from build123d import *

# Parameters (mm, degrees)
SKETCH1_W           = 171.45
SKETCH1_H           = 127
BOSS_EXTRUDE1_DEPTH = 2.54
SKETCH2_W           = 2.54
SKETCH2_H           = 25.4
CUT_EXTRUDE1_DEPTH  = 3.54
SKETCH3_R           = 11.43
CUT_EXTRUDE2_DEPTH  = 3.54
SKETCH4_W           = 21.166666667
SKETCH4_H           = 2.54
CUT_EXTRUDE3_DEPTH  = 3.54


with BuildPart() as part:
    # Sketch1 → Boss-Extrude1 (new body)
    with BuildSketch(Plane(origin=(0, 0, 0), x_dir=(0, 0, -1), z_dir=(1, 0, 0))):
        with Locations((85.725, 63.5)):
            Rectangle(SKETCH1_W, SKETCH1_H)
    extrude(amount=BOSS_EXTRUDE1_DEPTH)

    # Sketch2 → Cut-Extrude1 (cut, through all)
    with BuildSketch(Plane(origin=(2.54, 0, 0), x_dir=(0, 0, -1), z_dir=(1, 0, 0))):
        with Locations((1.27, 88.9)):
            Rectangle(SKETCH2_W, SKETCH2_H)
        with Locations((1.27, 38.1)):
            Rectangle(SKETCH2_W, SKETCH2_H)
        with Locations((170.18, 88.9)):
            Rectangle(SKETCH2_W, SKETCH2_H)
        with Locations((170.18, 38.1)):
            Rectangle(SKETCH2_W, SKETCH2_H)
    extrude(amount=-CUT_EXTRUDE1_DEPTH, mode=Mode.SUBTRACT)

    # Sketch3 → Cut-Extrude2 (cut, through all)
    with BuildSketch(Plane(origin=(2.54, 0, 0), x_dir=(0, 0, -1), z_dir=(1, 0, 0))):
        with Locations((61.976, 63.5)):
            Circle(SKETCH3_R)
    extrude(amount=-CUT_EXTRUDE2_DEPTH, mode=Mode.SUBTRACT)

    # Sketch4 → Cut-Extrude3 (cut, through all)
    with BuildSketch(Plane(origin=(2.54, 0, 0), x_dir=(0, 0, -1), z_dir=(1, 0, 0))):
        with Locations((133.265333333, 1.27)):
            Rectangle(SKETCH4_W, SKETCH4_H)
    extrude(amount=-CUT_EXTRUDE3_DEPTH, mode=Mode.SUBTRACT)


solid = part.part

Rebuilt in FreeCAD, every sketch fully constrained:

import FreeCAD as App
import Part
import Sketcher
Q = App.Units.Quantity

doc = App.newDocument("Part")
body = doc.addObject("PartDesign::Body", "Body")

# Sketch on YZ plane
sketch1 = doc.addObject("Sketcher::SketchObject", "Sketch")
body.addObject(sketch1)
sketch1.AttachmentSupport = (doc.YZ_Plane, [""])
sketch1.MapMode = "FlatFace"
sketch1.addGeometry(Part.LineSegment(App.Vector(127, 0, 0), App.Vector(0, 0, 0)), False)
sketch1.addGeometry(Part.LineSegment(App.Vector(0, 0, 0), App.Vector(0, -171.45, 0)), False)
sketch1.addGeometry(Part.LineSegment(App.Vector(0, -171.45, 0), App.Vector(127, -171.45, 0)), False)
sketch1.addGeometry(Part.LineSegment(App.Vector(127, -171.45, 0), App.Vector(127, 0, 0)), False)
sketch1.addConstraint(Sketcher.Constraint("Coincident", 0, 2, 1, 1))
sketch1.addConstraint(Sketcher.Constraint("Coincident", 1, 2, 2, 1))
sketch1.addConstraint(Sketcher.Constraint("Coincident", 2, 2, 3, 1))
sketch1.addConstraint(Sketcher.Constraint("Coincident", 3, 2, 0, 1))
sketch1.addConstraint(Sketcher.Constraint("Horizontal", 0))
sketch1.addConstraint(Sketcher.Constraint("Vertical", 1))
sketch1.addConstraint(Sketcher.Constraint("Horizontal", 2))
sketch1.addConstraint(Sketcher.Constraint("Vertical", 3))
sketch1.addConstraint(Sketcher.Constraint("Coincident", 0, 2, -1, 1))
sketch1.addConstraint(Sketcher.Constraint("DistanceX", 0, 2, 0, 1, Q("5 in")))
sketch1.addConstraint(Sketcher.Constraint("DistanceY", 1, 2, 1, 1, Q("6.75 in")))
pad1 = doc.addObject("PartDesign::Pad", "Pad")
body.addObject(pad1)
pad1.Profile = sketch1
pad1.Length = Q("0.1 in")

# Sketch on YZ plane
sketch2 = doc.addObject("Sketcher::SketchObject", "Sketch001")
body.addObject(sketch2)
sketch2.AttachmentSupport = (doc.YZ_Plane, [""])
sketch2.MapMode = "FlatFace"
sketch2.AttachmentOffset = App.Placement(App.Vector(0, 0, 0.1 * 25.4), App.Rotation())
sketch2.addGeometry(Part.LineSegment(App.Vector(101.6, 0, 0), App.Vector(76.2, 0, 0)), False)
sketch2.addGeometry(Part.LineSegment(App.Vector(76.2, 0, 0), App.Vector(76.2, -2.54, 0)), False)
sketch2.addGeometry(Part.LineSegment(App.Vector(76.2, -2.54, 0), App.Vector(101.6, -2.54, 0)), False)
sketch2.addGeometry(Part.LineSegment(App.Vector(101.6, -2.54, 0), App.Vector(101.6, 0, 0)), False)
sketch2.addGeometry(Part.LineSegment(App.Vector(50.8, 0, 0), App.Vector(25.4, 0, 0)), False)
sketch2.addGeometry(Part.LineSegment(App.Vector(25.4, 0, 0), App.Vector(25.4, -2.54, 0)), False)
sketch2.addGeometry(Part.LineSegment(App.Vector(25.4, -2.54, 0), App.Vector(50.8, -2.54, 0)), False)
sketch2.addGeometry(Part.LineSegment(App.Vector(50.8, -2.54, 0), App.Vector(50.8, 0, 0)), False)
sketch2.addGeometry(Part.LineSegment(App.Vector(101.6, -168.91, 0), App.Vector(76.2, -168.91, 0)), False)
sketch2.addGeometry(Part.LineSegment(App.Vector(76.2, -168.91, 0), App.Vector(76.2, -171.45, 0)), False)
sketch2.addGeometry(Part.LineSegment(App.Vector(76.2, -171.45, 0), App.Vector(101.6, -171.45, 0)), False)
sketch2.addGeometry(Part.LineSegment(App.Vector(101.6, -171.45, 0), App.Vector(101.6, -168.91, 0)), False)
sketch2.addGeometry(Part.LineSegment(App.Vector(50.8, -168.91, 0), App.Vector(25.4, -168.91, 0)), False)
sketch2.addGeometry(Part.LineSegment(App.Vector(25.4, -168.91, 0), App.Vector(25.4, -171.45, 0)), False)
sketch2.addGeometry(Part.LineSegment(App.Vector(25.4, -171.45, 0), App.Vector(50.8, -171.45, 0)), False)
sketch2.addGeometry(Part.LineSegment(App.Vector(50.8, -171.45, 0), App.Vector(50.8, -168.91, 0)), False)
sketch2.addConstraint(Sketcher.Constraint("Coincident", 0, 2, 1, 1))
sketch2.addConstraint(Sketcher.Constraint("Coincident", 1, 2, 2, 1))
sketch2.addConstraint(Sketcher.Constraint("Coincident", 2, 2, 3, 1))
sketch2.addConstraint(Sketcher.Constraint("Coincident", 3, 2, 0, 1))
sketch2.addConstraint(Sketcher.Constraint("Coincident", 4, 2, 5, 1))
sketch2.addConstraint(Sketcher.Constraint("Coincident", 5, 2, 6, 1))
sketch2.addConstraint(Sketcher.Constraint("Coincident", 6, 2, 7, 1))
sketch2.addConstraint(Sketcher.Constraint("Coincident", 7, 2, 4, 1))
sketch2.addConstraint(Sketcher.Constraint("Coincident", 8, 2, 9, 1))
sketch2.addConstraint(Sketcher.Constraint("Coincident", 9, 2, 10, 1))
sketch2.addConstraint(Sketcher.Constraint("Coincident", 10, 2, 11, 1))
sketch2.addConstraint(Sketcher.Constraint("Coincident", 11, 2, 8, 1))
sketch2.addConstraint(Sketcher.Constraint("Coincident", 12, 2, 13, 1))
sketch2.addConstraint(Sketcher.Constraint("Coincident", 13, 2, 14, 1))
sketch2.addConstraint(Sketcher.Constraint("Coincident", 14, 2, 15, 1))
sketch2.addConstraint(Sketcher.Constraint("Coincident", 15, 2, 12, 1))
sketch2.addConstraint(Sketcher.Constraint("Horizontal", 0))
sketch2.addConstraint(Sketcher.Constraint("Vertical", 1))
sketch2.addConstraint(Sketcher.Constraint("Horizontal", 2))
sketch2.addConstraint(Sketcher.Constraint("Vertical", 3))
sketch2.addConstraint(Sketcher.Constraint("Horizontal", 4))
sketch2.addConstraint(Sketcher.Constraint("Vertical", 5))
sketch2.addConstraint(Sketcher.Constraint("Horizontal", 6))
sketch2.addConstraint(Sketcher.Constraint("Vertical", 7))
sketch2.addConstraint(Sketcher.Constraint("Horizontal", 8))
sketch2.addConstraint(Sketcher.Constraint("Vertical", 9))
sketch2.addConstraint(Sketcher.Constraint("Horizontal", 10))
sketch2.addConstraint(Sketcher.Constraint("Vertical", 11))
sketch2.addConstraint(Sketcher.Constraint("Horizontal", 12))
sketch2.addConstraint(Sketcher.Constraint("Vertical", 13))
sketch2.addConstraint(Sketcher.Constraint("Horizontal", 14))
sketch2.addConstraint(Sketcher.Constraint("Vertical", 15))
sketch2.addConstraint(Sketcher.Constraint("PointOnObject", 0, 2, -1))
sketch2.addConstraint(Sketcher.Constraint("PointOnObject", 4, 2, -1))
sketch2.addConstraint(Sketcher.Constraint("Horizontal", 2, 2, 5, 2))
sketch2.addConstraint(Sketcher.Constraint("Horizontal", 11, 2, 12, 2))
sketch2.addConstraint(Sketcher.Constraint("Horizontal", 10, 2, 13, 2))
sketch2.addConstraint(Sketcher.Constraint("Vertical", 1, 2, 8, 2))
sketch2.addConstraint(Sketcher.Constraint("Vertical", 3, 2, 10, 2))
sketch2.addConstraint(Sketcher.Constraint("Vertical", 5, 2, 12, 2))
sketch2.addConstraint(Sketcher.Constraint("Vertical", 7, 2, 14, 2))
sketch2.addConstraint(Sketcher.Constraint("Equal", 2, 4))
sketch2.addConstraint(Sketcher.Constraint("Equal", 7, 9))
sketch2.addConstraint(Sketcher.Constraint("DistanceX", 0, 2, 0, 1, Q("1 in")))
sketch2.addConstraint(Sketcher.Constraint("DistanceY", 1, 2, 1, 1, Q("0.1 in")))
sketch2.addConstraint(Sketcher.Constraint("DistanceX", -1, 1, 0, 2, Q("3 in")))
sketch2.addConstraint(Sketcher.Constraint("DistanceX", -1, 1, 4, 2, Q("1 in")))
sketch2.addConstraint(Sketcher.Constraint("DistanceY", 8, 2, -1, 1, Q("6.65 in")))
pocket1 = doc.addObject("PartDesign::Pocket", "Pocket")
body.addObject(pocket1)
pocket1.Profile = sketch2
pocket1.Type = "ThroughAll"

# Sketch on YZ plane
sketch3 = doc.addObject("Sketcher::SketchObject", "Sketch002")
body.addObject(sketch3)
sketch3.AttachmentSupport = (doc.YZ_Plane, [""])
sketch3.MapMode = "FlatFace"
sketch3.AttachmentOffset = App.Placement(App.Vector(0, 0, 0.1 * 25.4), App.Rotation())
sketch3.addGeometry(Part.Circle(App.Vector(63.5, -61.976, 0), App.Vector(0, 0, 1), 11.43), False)
sketch3.addConstraint(Sketcher.Constraint("Diameter", 0, Q("0.9 in")))
sketch3.addConstraint(Sketcher.Constraint("DistanceX", -1, 1, 0, 3, Q("2.5 in")))
sketch3.addConstraint(Sketcher.Constraint("DistanceY", 0, 3, -1, 1, Q("2.44 in")))
pocket2 = doc.addObject("PartDesign::Pocket", "Pocket001")
body.addObject(pocket2)
pocket2.Profile = sketch3
pocket2.Type = "ThroughAll"

# Sketch on YZ plane
sketch4 = doc.addObject("Sketcher::SketchObject", "Sketch003")
body.addObject(sketch4)
sketch4.AttachmentSupport = (doc.YZ_Plane, [""])
sketch4.MapMode = "FlatFace"
sketch4.AttachmentOffset = App.Placement(App.Vector(0, 0, 0.1 * 25.4), App.Rotation())
sketch4.addGeometry(Part.LineSegment(App.Vector(2.54, -122.682, 0), App.Vector(0, -122.682, 0)), False)
sketch4.addGeometry(Part.LineSegment(App.Vector(0, -122.682, 0), App.Vector(0, -143.848667, 0)), False)
sketch4.addGeometry(Part.LineSegment(App.Vector(0, -143.848667, 0), App.Vector(2.54, -143.848667, 0)), False)
sketch4.addGeometry(Part.LineSegment(App.Vector(2.54, -143.848667, 0), App.Vector(2.54, -122.682, 0)), False)
sketch4.addConstraint(Sketcher.Constraint("Coincident", 0, 2, 1, 1))
sketch4.addConstraint(Sketcher.Constraint("Coincident", 1, 2, 2, 1))
sketch4.addConstraint(Sketcher.Constraint("Coincident", 2, 2, 3, 1))
sketch4.addConstraint(Sketcher.Constraint("Coincident", 3, 2, 0, 1))
sketch4.addConstraint(Sketcher.Constraint("Horizontal", 0))
sketch4.addConstraint(Sketcher.Constraint("Vertical", 1))
sketch4.addConstraint(Sketcher.Constraint("Horizontal", 2))
sketch4.addConstraint(Sketcher.Constraint("Vertical", 3))
sketch4.addConstraint(Sketcher.Constraint("PointOnObject", 0, 2, -2))
sketch4.addConstraint(Sketcher.Constraint("DistanceX", 0, 2, 0, 1, Q("0.1 in")))
sketch4.addConstraint(Sketcher.Constraint("DistanceY", 0, 2, -1, 1, Q("4.83 in")))
sketch4.addConstraint(Sketcher.Constraint("DistanceY", 1, 2, 1, 1, Q("21.166667 mm")))
pocket3 = doc.addObject("PartDesign::Pocket", "Pocket002")
body.addObject(pocket3)
pocket3.Profile = sketch4
pocket3.Type = "ThroughAll"

doc.recompute()
